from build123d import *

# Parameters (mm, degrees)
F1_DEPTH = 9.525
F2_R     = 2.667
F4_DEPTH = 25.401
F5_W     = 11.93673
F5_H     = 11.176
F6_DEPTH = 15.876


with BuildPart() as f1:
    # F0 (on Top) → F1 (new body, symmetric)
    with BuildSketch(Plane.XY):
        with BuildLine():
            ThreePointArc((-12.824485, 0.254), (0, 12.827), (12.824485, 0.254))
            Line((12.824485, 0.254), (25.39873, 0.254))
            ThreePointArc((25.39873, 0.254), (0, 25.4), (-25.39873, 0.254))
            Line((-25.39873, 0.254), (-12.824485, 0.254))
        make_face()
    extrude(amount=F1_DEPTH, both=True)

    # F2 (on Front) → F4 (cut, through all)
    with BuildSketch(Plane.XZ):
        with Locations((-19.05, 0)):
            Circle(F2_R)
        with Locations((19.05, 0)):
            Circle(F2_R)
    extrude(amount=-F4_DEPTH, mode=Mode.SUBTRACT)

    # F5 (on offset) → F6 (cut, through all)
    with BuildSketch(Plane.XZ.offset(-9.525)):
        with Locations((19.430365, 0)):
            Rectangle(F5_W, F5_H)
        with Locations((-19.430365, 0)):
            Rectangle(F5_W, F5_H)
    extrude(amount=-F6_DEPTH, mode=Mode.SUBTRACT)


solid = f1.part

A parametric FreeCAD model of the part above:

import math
import FreeCAD as App
import Part
import Sketcher
Q = App.Units.Quantity


def add_polygon(sketch, points):
    """Adds a closed chain of lines whose ends are joined by coincident constraints."""
    first, n = sketch.GeometryCount, len(points)
    for a, b in zip(points, points[1:] + points[:1]):
        sketch.addGeometry(Part.LineSegment(App.Vector(*a, 0), App.Vector(*b, 0)), False)
    for i in range(n):
        sketch.addConstraint(Sketcher.Constraint("Coincident", first + i, 2, first + (i + 1) % n, 1))

doc = App.newDocument("Part")
body = doc.addObject("PartDesign::Body", "Body")

# Sketch on XY plane
sketch1 = body.newObject("Sketcher::SketchObject", "Sketch")
sketch1.AttachmentSupport = (doc.getObject("XY_Plane"), [""])
sketch1.MapMode = "FlatFace"
sketch1.addGeometry([
    Part.ArcOfCircle(Part.Circle(App.Vector(0, 0, 0), App.Vector(0, 0, 1), 12.827), math.radians(1.134644), math.radians(178.865356)),
    Part.LineSegment(App.Vector(12.824485, 0.254, 0), App.Vector(25.39873, 0.254, 0)),
    Part.ArcOfCircle(Part.Circle(App.Vector(0, 0, 0), App.Vector(0, 0, 1), 25.4), math.radians(0.572967), math.radians(179.427033)),
    Part.LineSegment(App.Vector(-25.39873, 0.254, 0), App.Vector(-12.824485, 0.254, 0)),
], False)
sketch1.addConstraint([
    Sketcher.Constraint("Coincident", 0, 1, 1, 1),
    Sketcher.Constraint("Coincident", 1, 2, 2, 1),
    Sketcher.Constraint("Coincident", 2, 2, 3, 1),
    Sketcher.Constraint("Coincident", 3, 2, 0, 2),
    Sketcher.Constraint("Horizontal", 1),
    Sketcher.Constraint("Horizontal", 3),
    Sketcher.Constraint("Coincident", 0, 3, -1, 1),
    Sketcher.Constraint("Coincident", 2, 3, -1, 1),
    Sketcher.Constraint("Horizontal", 1, 2, 2, 2),
    Sketcher.Constraint("Radius", 2, Q("1 in")),
    Sketcher.Constraint("Radius", 0, Q("0.505 in")),
    Sketcher.Constraint("DistanceY", -1, 1, 0, 1, Q("0.01 in")),
])
pad1 = body.newObject("PartDesign::Pad", "Pad")
pad1.Profile = sketch1
pad1.Length = Q("0.75 in")
pad1.Midplane = True

# Sketch on XZ plane
sketch2 = body.newObject("Sketcher::SketchObject", "Sketch001")
sketch2.AttachmentSupport = (doc.getObject("XZ_Plane"), [""])
sketch2.MapMode = "FlatFace"
sketch2.addGeometry([
    Part.Circle(App.Vector(-19.05, 0, 0), App.Vector(0, 0, 1), 2.667),
    Part.Circle(App.Vector(19.05, 0, 0), App.Vector(0, 0, 1), 2.667),
], False)
sketch2.addConstraint([
    Sketcher.Constraint("Equal", 0, 1),
    Sketcher.Constraint("Symmetric", 0, 3, 1, 3, -1, 1),
    Sketcher.Constraint("PointOnObject", 0, 3, -1),
    Sketcher.Constraint("Diameter", 0, Q("0.21 in")),
    Sketcher.Constraint("DistanceX", 0, 3, 1, 3, Q("1.5 in")),
])
pocket1 = body.newObject("PartDesign::Pocket", "Pocket")
pocket1.Profile = sketch2
pocket1.Type = "ThroughAll"

# Sketch on XZ plane
sketch3 = body.newObject("Sketcher::SketchObject", "Sketch002")
sketch3.AttachmentSupport = (doc.getObject("XZ_Plane"), [""])
sketch3.MapMode = "FlatFace"
sketch3.AttachmentOffset = App.Placement(App.Vector(0, 0, -0.375 * 25.4), App.Rotation())
add_polygon(sketch3, [(13.462, 5.588), (13.462, -5.588), (25.39873, -5.588), (25.39873, 5.588)])  # lines 0-3
add_polygon(sketch3, [(-25.39873, 5.588), (-25.39873, -5.588), (-13.462, -5.588), (-13.462, 5.588)])  # lines 4-7
sketch3.addConstraint([
    Sketcher.Constraint("Vertical", 0),
    Sketcher.Constraint("Horizontal", 1),
    Sketcher.Constraint("Vertical", 2),
    Sketcher.Constraint("Horizontal", 3),
    Sketcher.Constraint("Vertical", 4),
    Sketcher.Constraint("Horizontal", 5),
    Sketcher.Constraint("Vertical", 6),
    Sketcher.Constraint("Horizontal", 7),
    Sketcher.Constraint("Symmetric", 2, 2, 4, 2, -1, 1),
    Sketcher.Constraint("Symmetric", 0, 2, 6, 2, -1, 1),
    Sketcher.Constraint("Horizontal", 1, 2, 4, 2),
    Sketcher.Constraint("DistanceY", 0, 2, 0, 1, Q("0.44 in")),
    Sketcher.Constraint("DistanceX", -1, 1, 0, 2, Q("0.53 in")),
    Sketcher.Constraint("DistanceX", 4, 2, 1, 2, Q("1.9999 in")),
])
pocket2 = body.newObject("PartDesign::Pocket", "Pocket001")
pocket2.Profile = sketch3
pocket2.Type = "ThroughAll"

doc.recompute()
